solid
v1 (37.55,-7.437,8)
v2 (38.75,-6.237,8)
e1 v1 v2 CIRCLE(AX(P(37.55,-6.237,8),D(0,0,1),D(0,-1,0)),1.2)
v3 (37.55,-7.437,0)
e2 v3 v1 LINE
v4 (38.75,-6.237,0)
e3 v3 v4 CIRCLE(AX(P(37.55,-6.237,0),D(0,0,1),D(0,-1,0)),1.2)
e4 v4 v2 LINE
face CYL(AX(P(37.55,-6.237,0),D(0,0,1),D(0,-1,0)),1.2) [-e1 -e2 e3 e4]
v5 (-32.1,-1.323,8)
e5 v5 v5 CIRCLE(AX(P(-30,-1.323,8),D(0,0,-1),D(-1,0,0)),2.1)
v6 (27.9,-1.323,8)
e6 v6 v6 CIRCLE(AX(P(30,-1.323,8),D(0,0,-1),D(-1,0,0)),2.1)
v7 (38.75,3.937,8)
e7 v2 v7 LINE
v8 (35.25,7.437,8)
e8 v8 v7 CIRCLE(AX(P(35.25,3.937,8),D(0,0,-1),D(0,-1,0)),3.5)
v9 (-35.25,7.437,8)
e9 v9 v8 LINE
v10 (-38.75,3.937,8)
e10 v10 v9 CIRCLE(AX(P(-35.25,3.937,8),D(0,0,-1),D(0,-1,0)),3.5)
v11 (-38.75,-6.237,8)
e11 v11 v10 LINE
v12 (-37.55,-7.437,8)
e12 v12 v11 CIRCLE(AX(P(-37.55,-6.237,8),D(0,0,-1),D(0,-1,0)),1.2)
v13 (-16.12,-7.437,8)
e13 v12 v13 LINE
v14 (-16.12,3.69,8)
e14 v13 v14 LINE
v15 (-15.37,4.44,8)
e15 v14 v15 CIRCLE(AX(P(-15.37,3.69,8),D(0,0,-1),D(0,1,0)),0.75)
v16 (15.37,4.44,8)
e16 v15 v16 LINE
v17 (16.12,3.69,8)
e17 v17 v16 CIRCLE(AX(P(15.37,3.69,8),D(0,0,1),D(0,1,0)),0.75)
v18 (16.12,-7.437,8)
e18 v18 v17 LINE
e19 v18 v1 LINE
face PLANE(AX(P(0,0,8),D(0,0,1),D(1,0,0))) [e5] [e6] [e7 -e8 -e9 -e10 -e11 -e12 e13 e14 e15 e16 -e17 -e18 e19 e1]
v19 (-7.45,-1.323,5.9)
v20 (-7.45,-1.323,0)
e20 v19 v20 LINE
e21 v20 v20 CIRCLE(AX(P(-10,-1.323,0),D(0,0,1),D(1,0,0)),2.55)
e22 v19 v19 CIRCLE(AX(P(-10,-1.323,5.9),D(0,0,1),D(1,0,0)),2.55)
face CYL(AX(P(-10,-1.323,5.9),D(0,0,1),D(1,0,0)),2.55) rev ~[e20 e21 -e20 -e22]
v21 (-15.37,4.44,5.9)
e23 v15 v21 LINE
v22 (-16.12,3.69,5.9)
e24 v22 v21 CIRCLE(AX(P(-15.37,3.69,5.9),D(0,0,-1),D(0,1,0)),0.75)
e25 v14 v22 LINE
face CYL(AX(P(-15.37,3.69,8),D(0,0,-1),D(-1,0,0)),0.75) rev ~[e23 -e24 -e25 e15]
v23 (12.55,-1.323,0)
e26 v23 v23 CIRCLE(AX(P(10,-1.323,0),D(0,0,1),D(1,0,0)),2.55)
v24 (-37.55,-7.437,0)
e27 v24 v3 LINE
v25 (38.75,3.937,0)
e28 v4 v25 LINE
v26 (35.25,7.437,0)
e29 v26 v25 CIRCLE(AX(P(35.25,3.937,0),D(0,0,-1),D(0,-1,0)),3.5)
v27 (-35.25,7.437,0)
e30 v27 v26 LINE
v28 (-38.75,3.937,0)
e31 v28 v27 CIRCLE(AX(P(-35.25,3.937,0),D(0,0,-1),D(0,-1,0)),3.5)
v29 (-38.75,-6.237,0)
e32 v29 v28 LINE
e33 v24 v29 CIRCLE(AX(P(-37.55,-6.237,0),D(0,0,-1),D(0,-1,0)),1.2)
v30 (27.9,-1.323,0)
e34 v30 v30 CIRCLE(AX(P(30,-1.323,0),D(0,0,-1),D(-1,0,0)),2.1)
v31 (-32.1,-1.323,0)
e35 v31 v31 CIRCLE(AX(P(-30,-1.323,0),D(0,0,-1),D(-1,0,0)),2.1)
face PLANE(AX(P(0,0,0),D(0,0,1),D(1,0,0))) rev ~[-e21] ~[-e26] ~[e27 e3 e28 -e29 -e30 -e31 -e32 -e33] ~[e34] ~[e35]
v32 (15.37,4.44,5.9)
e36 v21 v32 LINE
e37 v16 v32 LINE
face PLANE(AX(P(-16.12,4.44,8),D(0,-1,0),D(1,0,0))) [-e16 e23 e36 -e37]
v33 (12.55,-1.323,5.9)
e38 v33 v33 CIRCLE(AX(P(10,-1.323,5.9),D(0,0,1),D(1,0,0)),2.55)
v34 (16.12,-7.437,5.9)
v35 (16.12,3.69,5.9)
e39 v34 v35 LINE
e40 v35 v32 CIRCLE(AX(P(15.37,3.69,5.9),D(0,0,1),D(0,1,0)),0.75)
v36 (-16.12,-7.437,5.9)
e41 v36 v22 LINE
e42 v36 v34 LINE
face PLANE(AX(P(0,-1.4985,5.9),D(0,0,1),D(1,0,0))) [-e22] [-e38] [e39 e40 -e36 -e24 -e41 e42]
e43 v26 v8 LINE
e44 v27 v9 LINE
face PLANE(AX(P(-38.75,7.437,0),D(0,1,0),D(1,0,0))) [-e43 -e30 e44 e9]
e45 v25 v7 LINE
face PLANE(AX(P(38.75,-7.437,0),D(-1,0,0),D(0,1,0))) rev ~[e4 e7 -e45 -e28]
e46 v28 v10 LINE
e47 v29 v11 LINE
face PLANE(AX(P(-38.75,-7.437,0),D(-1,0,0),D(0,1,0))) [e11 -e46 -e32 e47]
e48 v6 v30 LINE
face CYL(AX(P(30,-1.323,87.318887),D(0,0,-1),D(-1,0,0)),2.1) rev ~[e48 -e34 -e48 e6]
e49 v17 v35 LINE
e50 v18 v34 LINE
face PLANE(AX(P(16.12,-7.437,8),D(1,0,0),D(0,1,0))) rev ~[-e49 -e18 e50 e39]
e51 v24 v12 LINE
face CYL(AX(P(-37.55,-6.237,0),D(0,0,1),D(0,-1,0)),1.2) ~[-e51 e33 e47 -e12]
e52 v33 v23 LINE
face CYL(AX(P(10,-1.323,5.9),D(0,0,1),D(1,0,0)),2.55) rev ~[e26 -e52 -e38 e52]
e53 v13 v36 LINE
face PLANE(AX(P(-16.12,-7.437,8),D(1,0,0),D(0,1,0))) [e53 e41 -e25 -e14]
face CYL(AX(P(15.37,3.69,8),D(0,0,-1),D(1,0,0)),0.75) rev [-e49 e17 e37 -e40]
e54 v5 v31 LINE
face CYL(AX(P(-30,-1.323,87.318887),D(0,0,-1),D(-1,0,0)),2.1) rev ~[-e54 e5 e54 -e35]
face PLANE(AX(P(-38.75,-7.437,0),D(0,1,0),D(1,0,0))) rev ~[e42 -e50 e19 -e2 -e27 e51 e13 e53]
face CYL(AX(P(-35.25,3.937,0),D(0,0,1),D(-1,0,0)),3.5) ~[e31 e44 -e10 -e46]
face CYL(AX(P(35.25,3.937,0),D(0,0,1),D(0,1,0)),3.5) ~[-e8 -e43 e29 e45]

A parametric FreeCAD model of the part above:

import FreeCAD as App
import Part
import Sketcher

V = App.Vector
Q = App.Units.Quantity


def edges_at(feature, points):
    """Names of the edges that pass closest to the given points."""
    edges = feature.Shape.Edges
    near = lambda p: min(range(len(edges)), key=lambda i: edges[i].distToShape(Part.Vertex(*p))[0])
    return sorted({f"Edge{near(p) + 1}" for p in points})


def add_polygon(sketch, points):
    """Adds a closed chain of lines whose ends are joined by coincident constraints."""
    first, n = sketch.GeometryCount, len(points)
    for a, b in zip(points, points[1:] + points[:1]):
        sketch.addGeometry(Part.LineSegment(App.Vector(*a, 0), App.Vector(*b, 0)), False)
    for i in range(n):
        sketch.addConstraint(Sketcher.Constraint("Coincident", first + i, 2, first + (i + 1) % n, 1))

doc = App.newDocument("Part")
params = doc.addObject("Spreadsheet::Sheet", "Params")
for row, (alias, value) in enumerate([
    ("sketch1_width", "77.5 mm"),
    ("pad1_length", "8 mm"),
    ("sketch2_width", "32.24 mm"),
    ("pocket1_length", "2.1 mm"),
    ("fillet_radius", "3.5 mm"),
    ("fillet2_radius", "0.75 mm"),
    ("sketch3_diameter", "5.1 mm"),
    ("sketch4_diameter", "4.2 mm"),
    ("hole_diameter", "4.2 mm"),
    ("fillet3_radius", "1.2 mm"),
], start=1):
    params.set(f"A{row}", alias)
    params.set(f"B{row}", "=" + value)
    params.setAlias(f"B{row}", alias)

body = doc.addObject("PartDesign::Body", "Body")

sketch1 = body.newObject("Sketcher::SketchObject", "Sketch")
sketch1.AttachmentSupport = (doc.getObject("XY_Plane"), [""])
sketch1.MapMode = "FlatFace"
add_polygon(sketch1, [(-39, 7), (-39, -7), (39, -7), (39, 7)])
sketch1.addConstraint([
    Sketcher.Constraint("Vertical", 0),
    Sketcher.Constraint("Horizontal", 1),
    Sketcher.Constraint("Vertical", 2),
    Sketcher.Constraint("Horizontal", 3),
    Sketcher.Constraint("Symmetric", 0, 2, 2, 2, -1, 1),
    Sketcher.Constraint("DistanceX", 1, 1, 1, 2, Q("77.5 mm")),
    Sketcher.Constraint("DistanceY", 0, 2, 0, 1, Q("14.874 mm")),
])
sketch1.setExpression("Constraints[9]", "Params.sketch1_width")
pad1 = body.newObject("PartDesign::Pad", "Pad")
pad1.Profile = sketch1
pad1.setExpression("Length", "Params.pad1_length")

sketch2 = body.newObject("Sketcher::SketchObject", "Sketch001")
sketch2.AttachmentSupport = (doc.getObject("XY_Plane"), [""])
sketch2.MapMode = "FlatFace"
sketch2.AttachmentOffset = App.Placement(V(0, 0, 8), App.Rotation())
add_polygon(sketch2, [(-16, 4), (-16, -7), (16, -7), (16, 4)])
sketch2.addConstraint([
    Sketcher.Constraint("Vertical", 0),
    Sketcher.Constraint("Horizontal", 1),
    Sketcher.Constraint("Vertical", 2),
    Sketcher.Constraint("Horizontal", 3),
    Sketcher.Constraint("DistanceX", 1, 1, 1, 2, Q("32.24 mm")),
    Sketcher.Constraint("DistanceY", 0, 2, 0, 1, Q("11.877 mm")),
    Sketcher.Constraint("DistanceX", 0, 2, -1, 1, Q("16.12 mm")),
    Sketcher.Constraint("DistanceY", -1, 1, 2, 2, Q("4.44 mm")),
])
sketch2.setExpression("Constraints[8]", "Params.sketch2_width")
pocket1 = body.newObject("PartDesign::Pocket", "Pocket")
pocket1.Profile = sketch2
pocket1.setExpression("Length", "Params.pocket1_length")
doc.recompute()

fillet = body.newObject("PartDesign::Fillet", "Fillet")
fillet.Base = (pocket1, edges_at(pocket1, [(-38.75, 7.437, 4), (38.75, 7.437, 4)]))
fillet.setExpression("Radius", "Params.fillet_radius")
doc.recompute()

fillet2 = body.newObject("PartDesign::Fillet", "Fillet001")
fillet2.Base = (fillet, edges_at(fillet, [(-16.12, 4.44, 6.95), (16.12, 4.44, 6.95)]))
fillet2.setExpression("Radius", "Params.fillet2_radius")

sketch3 = body.newObject("Sketcher::SketchObject", "Sketch002")
sketch3.AttachmentSupport = (doc.getObject("XY_Plane"), [""])
sketch3.MapMode = "FlatFace"
sketch3.AttachmentOffset = App.Placement(V(0, 0, 5.9), App.Rotation())
sketch3.addGeometry([
    Part.Circle(V(-10, -1.3, 0), V(0, 0, 1), 2.5),
    Part.Circle(V(10, -1.3, 0), V(0, 0, 1), 2.5),
], False)
sketch3.addConstraint([
    Sketcher.Constraint("Equal", 0, 1),
    Sketcher.Constraint("Symmetric", 0, 3, 1, 3, -2),
    Sketcher.Constraint("Diameter", 0, Q("5.1 mm")),
    Sketcher.Constraint("DistanceX", 0, 3, -1, 1, Q("10 mm")),
    Sketcher.Constraint("DistanceY", 0, 3, -1, 1, Q("1.323 mm")),
])
sketch3.setExpression("Constraints[2]", "Params.sketch3_diameter")
pocket2 = body.newObject("PartDesign::Pocket", "Pocket001")
pocket2.Profile = sketch3
pocket2.Type = "ThroughAll"

sketch4 = body.newObject("Sketcher::SketchObject", "Sketch003")
sketch4.AttachmentSupport = (doc.getObject("XY_Plane"), [""])
sketch4.MapMode = "FlatFace"
sketch4.AttachmentOffset = App.Placement(V(0, 0, 8), App.Rotation())
sketch4.addGeometry([
    Part.Circle(V(-30, -1.3, 0), V(0, 0, 1), 2.1),
    Part.Circle(V(30, -1.3, 0), V(0, 0, 1), 2.1),
], False)
sketch4.addConstraint([
    Sketcher.Constraint("Equal", 0, 1),
    Sketcher.Constraint("Symmetric", 0, 3, 1, 3, -2),
    Sketcher.Constraint("Diameter", 0, Q("4.2 mm")),
    Sketcher.Constraint("DistanceX", 0, 3, -1, 1, Q("30 mm")),
    Sketcher.Constraint("DistanceY", 0, 3, -1, 1, Q("1.323 mm")),
])
sketch4.setExpression("Constraints[2]", "Params.sketch4_diameter")
doc.recompute()
hole = body.newObject("PartDesign::Hole", "Hole")
hole.Profile = sketch4
hole.ThreadType = "None"
hole.setExpression("Diameter", "Params.hole_diameter")
hole.DepthType = "ThroughAll"
doc.recompute()

fillet3 = body.newObject("PartDesign::Fillet", "Fillet002")
fillet3.Base = (hole, edges_at(hole, [(38.75, -7.437, 4), (-38.75, -7.437, 4)]))
fillet3.setExpression("Radius", "Params.fillet3_radius")

doc.recompute()
